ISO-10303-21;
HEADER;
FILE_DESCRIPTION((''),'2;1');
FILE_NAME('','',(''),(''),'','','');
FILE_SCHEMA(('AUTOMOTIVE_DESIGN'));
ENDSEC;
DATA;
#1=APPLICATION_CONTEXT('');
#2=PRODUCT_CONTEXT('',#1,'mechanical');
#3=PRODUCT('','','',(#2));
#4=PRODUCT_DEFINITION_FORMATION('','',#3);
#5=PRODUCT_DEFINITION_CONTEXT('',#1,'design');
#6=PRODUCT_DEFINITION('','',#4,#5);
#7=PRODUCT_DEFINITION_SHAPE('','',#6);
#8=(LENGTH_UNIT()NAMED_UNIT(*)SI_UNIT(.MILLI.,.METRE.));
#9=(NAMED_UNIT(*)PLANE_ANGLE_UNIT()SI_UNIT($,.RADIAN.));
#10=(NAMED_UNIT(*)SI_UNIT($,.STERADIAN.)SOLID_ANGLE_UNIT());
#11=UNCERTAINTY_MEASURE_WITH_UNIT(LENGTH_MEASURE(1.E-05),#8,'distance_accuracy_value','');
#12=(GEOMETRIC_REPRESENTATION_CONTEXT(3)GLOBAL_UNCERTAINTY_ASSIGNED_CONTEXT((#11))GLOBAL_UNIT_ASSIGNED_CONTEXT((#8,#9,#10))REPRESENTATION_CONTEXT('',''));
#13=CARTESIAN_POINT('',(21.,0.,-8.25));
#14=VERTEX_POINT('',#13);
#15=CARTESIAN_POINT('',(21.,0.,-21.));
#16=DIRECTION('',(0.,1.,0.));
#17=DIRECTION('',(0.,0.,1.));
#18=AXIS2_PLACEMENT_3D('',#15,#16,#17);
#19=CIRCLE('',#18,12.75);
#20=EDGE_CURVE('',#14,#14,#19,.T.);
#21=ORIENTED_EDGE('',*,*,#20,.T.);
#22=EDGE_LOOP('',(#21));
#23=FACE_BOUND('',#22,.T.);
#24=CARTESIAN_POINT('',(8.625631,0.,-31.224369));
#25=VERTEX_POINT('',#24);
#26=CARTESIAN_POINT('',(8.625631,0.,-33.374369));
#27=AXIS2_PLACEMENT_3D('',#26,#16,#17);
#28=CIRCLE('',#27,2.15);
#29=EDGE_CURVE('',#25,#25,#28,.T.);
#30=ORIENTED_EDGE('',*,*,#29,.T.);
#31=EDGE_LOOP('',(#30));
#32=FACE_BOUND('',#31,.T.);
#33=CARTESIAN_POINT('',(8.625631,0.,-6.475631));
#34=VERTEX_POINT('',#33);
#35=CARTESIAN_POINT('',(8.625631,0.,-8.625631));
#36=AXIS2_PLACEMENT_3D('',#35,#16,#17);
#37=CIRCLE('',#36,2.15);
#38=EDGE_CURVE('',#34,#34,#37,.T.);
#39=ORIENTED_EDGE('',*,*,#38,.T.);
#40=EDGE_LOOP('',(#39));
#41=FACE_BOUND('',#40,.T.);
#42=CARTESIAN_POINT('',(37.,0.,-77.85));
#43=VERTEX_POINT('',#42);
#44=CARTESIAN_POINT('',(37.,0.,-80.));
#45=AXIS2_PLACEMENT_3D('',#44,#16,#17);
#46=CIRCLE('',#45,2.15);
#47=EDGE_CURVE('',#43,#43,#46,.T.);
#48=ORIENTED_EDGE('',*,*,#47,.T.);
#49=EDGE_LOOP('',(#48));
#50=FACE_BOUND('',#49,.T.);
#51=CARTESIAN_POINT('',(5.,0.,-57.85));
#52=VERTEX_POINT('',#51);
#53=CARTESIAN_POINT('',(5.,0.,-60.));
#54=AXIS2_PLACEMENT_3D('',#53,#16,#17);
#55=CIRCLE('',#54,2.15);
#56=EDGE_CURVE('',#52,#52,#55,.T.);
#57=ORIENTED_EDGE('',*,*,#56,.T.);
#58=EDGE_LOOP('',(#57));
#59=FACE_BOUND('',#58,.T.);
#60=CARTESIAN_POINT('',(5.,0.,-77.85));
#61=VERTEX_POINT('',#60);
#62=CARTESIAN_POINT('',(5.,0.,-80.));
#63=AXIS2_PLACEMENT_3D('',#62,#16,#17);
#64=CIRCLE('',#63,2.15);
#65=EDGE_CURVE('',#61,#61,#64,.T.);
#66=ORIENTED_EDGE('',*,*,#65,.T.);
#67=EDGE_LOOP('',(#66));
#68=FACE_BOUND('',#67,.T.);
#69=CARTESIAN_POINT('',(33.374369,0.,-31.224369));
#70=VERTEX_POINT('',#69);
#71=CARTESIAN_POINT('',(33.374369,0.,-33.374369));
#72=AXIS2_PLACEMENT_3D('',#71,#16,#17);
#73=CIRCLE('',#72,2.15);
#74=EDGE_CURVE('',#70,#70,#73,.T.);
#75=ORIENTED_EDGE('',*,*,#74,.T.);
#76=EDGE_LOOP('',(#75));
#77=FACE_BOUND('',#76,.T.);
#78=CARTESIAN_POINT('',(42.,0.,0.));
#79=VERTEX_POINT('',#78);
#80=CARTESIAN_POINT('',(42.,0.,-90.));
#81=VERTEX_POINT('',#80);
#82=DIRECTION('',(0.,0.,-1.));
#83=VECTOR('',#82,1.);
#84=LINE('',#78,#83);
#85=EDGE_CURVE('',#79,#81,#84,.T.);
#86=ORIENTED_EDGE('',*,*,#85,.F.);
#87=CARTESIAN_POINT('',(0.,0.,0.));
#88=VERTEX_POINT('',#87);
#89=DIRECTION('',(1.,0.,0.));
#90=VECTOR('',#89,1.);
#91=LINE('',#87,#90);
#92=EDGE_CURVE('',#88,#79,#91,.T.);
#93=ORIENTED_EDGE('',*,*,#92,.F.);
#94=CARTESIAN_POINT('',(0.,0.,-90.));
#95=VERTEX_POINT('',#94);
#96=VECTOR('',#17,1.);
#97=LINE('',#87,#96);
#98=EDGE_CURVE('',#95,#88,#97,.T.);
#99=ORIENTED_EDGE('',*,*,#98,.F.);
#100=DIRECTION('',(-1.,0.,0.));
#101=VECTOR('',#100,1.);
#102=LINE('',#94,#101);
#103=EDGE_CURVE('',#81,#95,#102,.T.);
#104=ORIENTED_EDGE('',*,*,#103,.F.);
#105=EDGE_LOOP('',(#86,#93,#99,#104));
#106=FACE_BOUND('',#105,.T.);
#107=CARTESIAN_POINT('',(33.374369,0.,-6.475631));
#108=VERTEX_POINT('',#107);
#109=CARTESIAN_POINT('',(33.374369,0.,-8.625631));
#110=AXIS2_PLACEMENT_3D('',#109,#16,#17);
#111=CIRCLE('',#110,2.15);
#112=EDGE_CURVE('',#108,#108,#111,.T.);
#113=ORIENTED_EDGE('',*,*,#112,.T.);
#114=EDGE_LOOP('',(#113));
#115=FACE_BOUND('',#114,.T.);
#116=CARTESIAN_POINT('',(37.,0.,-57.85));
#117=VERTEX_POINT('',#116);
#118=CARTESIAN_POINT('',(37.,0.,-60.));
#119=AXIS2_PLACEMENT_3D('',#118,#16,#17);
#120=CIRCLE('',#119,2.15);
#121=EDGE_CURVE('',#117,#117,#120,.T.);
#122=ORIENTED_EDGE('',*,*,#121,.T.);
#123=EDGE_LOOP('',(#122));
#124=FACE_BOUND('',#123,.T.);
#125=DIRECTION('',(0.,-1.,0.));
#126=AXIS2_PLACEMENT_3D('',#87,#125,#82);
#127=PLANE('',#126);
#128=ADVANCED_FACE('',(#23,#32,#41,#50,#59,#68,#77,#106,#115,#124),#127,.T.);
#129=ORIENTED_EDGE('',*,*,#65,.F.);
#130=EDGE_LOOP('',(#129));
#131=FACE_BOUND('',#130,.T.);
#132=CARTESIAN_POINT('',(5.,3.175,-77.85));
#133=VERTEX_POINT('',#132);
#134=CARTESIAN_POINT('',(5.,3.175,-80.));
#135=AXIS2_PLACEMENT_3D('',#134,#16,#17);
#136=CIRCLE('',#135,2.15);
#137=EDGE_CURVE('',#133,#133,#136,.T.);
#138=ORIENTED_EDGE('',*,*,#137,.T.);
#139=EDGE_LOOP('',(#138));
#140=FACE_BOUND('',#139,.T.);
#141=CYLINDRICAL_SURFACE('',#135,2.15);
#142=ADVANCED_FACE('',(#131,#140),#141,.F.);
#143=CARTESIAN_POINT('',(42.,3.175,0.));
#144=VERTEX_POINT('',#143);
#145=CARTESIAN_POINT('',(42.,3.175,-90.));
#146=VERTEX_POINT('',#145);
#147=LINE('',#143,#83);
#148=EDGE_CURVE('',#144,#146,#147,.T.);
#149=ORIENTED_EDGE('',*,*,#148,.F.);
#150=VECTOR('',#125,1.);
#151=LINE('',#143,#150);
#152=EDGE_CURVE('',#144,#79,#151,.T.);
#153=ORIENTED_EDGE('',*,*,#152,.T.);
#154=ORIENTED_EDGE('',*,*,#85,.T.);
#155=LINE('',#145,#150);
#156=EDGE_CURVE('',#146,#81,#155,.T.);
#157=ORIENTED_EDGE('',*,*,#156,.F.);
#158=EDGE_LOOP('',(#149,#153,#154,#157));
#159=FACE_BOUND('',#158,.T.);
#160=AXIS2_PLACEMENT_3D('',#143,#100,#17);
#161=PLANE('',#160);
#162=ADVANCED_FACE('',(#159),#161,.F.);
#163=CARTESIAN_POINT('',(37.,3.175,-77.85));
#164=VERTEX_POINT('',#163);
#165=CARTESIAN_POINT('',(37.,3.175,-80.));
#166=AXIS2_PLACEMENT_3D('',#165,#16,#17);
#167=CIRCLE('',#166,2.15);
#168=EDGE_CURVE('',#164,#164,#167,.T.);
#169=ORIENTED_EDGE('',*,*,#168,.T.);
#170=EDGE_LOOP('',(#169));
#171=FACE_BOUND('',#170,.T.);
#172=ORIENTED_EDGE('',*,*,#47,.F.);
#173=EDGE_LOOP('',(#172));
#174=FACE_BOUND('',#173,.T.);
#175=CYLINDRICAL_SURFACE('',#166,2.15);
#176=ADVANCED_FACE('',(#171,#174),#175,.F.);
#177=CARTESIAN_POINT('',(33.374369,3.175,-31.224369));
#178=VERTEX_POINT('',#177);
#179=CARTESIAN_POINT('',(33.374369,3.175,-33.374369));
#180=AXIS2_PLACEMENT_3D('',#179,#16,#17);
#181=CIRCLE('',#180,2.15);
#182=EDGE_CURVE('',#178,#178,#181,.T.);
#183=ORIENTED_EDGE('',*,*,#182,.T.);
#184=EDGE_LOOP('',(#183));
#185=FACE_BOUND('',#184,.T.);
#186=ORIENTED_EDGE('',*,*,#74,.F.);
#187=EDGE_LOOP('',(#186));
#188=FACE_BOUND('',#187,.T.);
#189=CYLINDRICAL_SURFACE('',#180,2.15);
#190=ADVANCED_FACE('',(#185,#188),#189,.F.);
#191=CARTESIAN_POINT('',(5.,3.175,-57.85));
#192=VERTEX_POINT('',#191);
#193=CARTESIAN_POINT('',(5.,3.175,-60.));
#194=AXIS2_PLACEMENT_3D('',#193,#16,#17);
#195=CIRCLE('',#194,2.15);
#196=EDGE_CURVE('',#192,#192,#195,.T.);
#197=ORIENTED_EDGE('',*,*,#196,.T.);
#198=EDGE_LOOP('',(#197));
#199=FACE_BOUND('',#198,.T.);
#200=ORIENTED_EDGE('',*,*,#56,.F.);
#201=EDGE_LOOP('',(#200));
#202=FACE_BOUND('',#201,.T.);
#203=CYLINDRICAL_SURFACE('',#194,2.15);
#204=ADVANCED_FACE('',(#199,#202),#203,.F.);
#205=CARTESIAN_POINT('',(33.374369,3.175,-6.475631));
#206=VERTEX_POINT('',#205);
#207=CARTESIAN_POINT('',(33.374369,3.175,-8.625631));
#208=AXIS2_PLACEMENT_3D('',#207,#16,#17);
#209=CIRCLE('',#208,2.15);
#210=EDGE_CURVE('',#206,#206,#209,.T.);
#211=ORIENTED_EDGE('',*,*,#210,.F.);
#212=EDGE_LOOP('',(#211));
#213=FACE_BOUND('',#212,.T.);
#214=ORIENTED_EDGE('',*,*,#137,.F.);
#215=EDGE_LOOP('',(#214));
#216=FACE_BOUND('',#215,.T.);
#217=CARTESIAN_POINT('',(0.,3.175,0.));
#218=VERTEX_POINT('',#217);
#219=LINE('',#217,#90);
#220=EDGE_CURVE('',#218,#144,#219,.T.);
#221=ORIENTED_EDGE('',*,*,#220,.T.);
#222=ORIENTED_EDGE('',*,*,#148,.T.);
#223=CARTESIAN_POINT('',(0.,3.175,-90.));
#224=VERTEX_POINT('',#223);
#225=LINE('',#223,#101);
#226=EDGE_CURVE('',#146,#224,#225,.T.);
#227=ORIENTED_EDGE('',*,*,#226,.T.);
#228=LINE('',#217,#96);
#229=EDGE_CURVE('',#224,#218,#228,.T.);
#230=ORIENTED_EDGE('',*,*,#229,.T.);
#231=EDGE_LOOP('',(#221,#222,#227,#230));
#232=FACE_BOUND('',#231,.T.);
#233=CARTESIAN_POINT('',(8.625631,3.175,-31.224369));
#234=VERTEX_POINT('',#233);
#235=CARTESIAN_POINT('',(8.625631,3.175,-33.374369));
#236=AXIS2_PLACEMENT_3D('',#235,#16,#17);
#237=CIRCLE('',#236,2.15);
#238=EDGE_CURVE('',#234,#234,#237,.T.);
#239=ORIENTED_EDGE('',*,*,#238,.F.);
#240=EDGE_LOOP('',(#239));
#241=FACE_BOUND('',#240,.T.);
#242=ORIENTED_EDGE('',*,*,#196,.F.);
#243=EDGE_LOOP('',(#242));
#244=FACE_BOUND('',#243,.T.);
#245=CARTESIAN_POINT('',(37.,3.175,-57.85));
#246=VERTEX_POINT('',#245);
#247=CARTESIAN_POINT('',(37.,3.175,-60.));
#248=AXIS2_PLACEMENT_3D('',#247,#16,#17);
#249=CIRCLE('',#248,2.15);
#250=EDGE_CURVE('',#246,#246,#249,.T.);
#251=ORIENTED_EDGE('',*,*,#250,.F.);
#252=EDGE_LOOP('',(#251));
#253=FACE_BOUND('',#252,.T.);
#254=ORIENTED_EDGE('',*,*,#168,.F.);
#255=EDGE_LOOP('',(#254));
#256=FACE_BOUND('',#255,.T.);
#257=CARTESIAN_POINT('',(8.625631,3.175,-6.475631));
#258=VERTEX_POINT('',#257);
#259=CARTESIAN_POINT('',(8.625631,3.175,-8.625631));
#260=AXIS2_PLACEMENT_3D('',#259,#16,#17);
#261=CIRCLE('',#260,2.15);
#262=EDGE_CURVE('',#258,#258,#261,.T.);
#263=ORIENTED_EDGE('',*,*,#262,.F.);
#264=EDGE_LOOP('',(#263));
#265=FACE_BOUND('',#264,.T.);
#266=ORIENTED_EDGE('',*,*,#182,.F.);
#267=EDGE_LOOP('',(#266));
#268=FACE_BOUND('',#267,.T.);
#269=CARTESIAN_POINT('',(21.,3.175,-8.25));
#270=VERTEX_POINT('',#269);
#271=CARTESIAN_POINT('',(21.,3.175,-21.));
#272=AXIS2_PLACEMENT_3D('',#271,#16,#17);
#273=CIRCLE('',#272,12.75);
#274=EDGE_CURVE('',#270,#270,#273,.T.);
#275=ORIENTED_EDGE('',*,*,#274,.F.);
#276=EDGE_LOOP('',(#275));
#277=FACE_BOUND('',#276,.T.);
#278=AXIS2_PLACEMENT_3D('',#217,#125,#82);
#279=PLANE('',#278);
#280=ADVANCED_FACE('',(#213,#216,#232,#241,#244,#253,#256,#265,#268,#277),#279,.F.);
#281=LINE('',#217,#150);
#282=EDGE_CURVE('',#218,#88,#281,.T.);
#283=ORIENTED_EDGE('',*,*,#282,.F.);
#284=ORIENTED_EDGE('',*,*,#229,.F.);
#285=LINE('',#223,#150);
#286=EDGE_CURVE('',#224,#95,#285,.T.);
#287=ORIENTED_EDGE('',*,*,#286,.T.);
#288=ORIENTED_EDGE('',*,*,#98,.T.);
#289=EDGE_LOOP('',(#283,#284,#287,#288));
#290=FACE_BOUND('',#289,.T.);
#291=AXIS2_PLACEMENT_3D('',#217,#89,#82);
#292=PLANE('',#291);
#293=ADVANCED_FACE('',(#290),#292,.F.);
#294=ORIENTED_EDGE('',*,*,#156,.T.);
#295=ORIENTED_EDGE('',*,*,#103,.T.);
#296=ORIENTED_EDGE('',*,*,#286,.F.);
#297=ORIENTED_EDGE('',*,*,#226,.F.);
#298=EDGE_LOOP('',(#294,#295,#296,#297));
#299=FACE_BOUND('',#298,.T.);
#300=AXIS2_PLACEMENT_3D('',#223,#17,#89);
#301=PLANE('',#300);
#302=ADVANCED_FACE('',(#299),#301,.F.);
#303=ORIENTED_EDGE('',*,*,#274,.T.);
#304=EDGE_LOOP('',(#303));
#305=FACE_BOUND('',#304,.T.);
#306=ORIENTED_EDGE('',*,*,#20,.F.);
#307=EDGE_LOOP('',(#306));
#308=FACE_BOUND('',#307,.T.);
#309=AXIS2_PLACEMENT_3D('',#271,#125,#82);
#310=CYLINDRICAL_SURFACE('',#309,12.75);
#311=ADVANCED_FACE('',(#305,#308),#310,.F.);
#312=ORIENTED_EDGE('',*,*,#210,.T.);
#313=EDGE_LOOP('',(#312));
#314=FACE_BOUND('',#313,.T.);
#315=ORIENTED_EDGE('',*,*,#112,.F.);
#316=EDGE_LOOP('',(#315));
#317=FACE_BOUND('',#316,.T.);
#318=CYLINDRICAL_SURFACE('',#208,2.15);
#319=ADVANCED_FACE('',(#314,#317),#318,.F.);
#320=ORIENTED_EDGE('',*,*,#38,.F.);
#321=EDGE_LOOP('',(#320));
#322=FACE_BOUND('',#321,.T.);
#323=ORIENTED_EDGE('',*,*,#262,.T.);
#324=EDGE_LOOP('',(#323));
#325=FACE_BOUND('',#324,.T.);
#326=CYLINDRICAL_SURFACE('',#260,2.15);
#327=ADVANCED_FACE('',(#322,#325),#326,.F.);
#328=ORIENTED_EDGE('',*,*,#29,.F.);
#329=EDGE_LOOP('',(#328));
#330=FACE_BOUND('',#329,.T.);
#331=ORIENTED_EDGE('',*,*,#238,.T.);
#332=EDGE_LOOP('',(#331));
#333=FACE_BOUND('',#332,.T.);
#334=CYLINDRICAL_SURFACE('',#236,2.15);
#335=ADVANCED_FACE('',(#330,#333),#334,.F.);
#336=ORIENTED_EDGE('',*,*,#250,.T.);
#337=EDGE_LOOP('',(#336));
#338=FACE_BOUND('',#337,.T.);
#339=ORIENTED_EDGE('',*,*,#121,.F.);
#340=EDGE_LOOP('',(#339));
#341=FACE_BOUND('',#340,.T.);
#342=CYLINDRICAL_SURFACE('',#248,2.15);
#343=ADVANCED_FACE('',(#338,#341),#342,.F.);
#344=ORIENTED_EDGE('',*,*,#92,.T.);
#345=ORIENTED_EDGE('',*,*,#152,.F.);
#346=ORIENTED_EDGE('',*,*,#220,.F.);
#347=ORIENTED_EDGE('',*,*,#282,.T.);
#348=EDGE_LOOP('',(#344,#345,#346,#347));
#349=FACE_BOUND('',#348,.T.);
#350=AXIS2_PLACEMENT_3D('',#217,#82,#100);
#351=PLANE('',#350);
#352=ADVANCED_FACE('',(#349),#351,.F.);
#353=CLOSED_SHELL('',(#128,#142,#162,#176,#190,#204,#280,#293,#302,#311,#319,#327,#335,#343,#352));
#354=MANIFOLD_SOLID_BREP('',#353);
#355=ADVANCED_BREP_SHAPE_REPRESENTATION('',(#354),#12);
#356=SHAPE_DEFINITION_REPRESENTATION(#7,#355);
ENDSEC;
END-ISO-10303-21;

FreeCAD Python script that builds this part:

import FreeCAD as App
import Part
import Sketcher


def add_polygon(sketch, points):
    """Adds a closed chain of lines whose ends are joined by coincident constraints."""
    first, n = sketch.GeometryCount, len(points)
    for a, b in zip(points, points[1:] + points[:1]):
        sketch.addGeometry(Part.LineSegment(App.Vector(*a, 0), App.Vector(*b, 0)), False)
    for i in range(n):
        sketch.addConstraint(Sketcher.Constraint("Coincident", first + i, 2, first + (i + 1) % n, 1))

doc = App.newDocument("Part")
body = doc.addObject("PartDesign::Body", "Body")

sketch1 = body.newObject("Sketcher::SketchObject", "Sketch")
sketch1.AttachmentSupport = (doc.getObject("XZ_Plane"), [""])
sketch1.MapMode = "FlatFace"
add_polygon(sketch1, [(0, -90), (0, 0), (42, 0), (42, -90)])
sketch1.addGeometry(Part.Circle(App.Vector(21, -21, 0), App.Vector(0, 0, 1), 13), False)
sketch1.addConstraint(Sketcher.Constraint("Vertical", 0))
sketch1.addConstraint(Sketcher.Constraint("Horizontal", 1))
sketch1.addConstraint(Sketcher.Constraint("Vertical", 2))
sketch1.addConstraint(Sketcher.Constraint("Horizontal", 3))
sketch1.addConstraint(Sketcher.Constraint("Coincident", 0, 2, -1, 1))
sketch1.addConstraint(Sketcher.Constraint("Diameter", 4, 25.5))
sketch1.addConstraint(Sketcher.Constraint("DistanceX", 1, 1, 1, 2, 42.0))
sketch1.addConstraint(Sketcher.Constraint("DistanceY", 0, 1, 0, 2, 90.0))
sketch1.addConstraint(Sketcher.Constraint("DistanceX", -1, 1, 4, 3, 21.0))
sketch1.addConstraint(Sketcher.Constraint("DistanceY", 4, 3, -1, 1, 21.0))
pad1 = body.newObject("PartDesign::Pad", "Pad")
pad1.Profile = sketch1
pad1.Length = 3.175
pad1.Reversed = True

sketch2 = body.newObject("Sketcher::SketchObject", "Sketch001")
sketch2.AttachmentSupport = (doc.getObject("XZ_Plane"), [""])
sketch2.MapMode = "FlatFace"
sketch2.AttachmentOffset = App.Placement(App.Vector(0, 0, -3.175), App.Rotation())
sketch2.addGeometry(Part.Circle(App.Vector(8.6, -33.4, 0), App.Vector(0, 0, 1), 2.1), False)
sketch2.addGeometry(Part.Circle(App.Vector(21, -21, 0), App.Vector(0, 0, 1), 2.1), False)
sketch2.addGeometry(Part.Circle(App.Vector(5, -80, 0), App.Vector(0, 0, 1), 2.1), False)
sketch2.addGeometry(Part.Circle(App.Vector(33.4, -33.4, 0), App.Vector(0, 0, 1), 2.1), False)
sketch2.addGeometry(Part.Circle(App.Vector(33.4, -8.6, 0), App.Vector(0, 0, 1), 2.1), False)
sketch2.addGeometry(Part.Circle(App.Vector(8.6, -8.6, 0), App.Vector(0, 0, 1), 2.1), False)
sketch2.addGeometry(Part.Circle(App.Vector(37, -80, 0), App.Vector(0, 0, 1), 2.1), False)
sketch2.addGeometry(Part.Circle(App.Vector(37, -60, 0), App.Vector(0, 0, 1), 2.1), False)
sketch2.addGeometry(Part.Circle(App.Vector(5, -60, 0), App.Vector(0, 0, 1), 2.1), False)
sketch2.addConstraint(Sketcher.Constraint("Equal", 0, 1))
sketch2.addConstraint(Sketcher.Constraint("Equal", 1, 2))
sketch2.addConstraint(Sketcher.Constraint("Equal", 2, 3))
sketch2.addConstraint(Sketcher.Constraint("Equal", 3, 4))
sketch2.addConstraint(Sketcher.Constraint("Equal", 4, 5))
sketch2.addConstraint(Sketcher.Constraint("Equal", 5, 6))
sketch2.addConstraint(Sketcher.Constraint("Equal", 6, 7))
sketch2.addConstraint(Sketcher.Constraint("Equal", 7, 8))
sketch2.addConstraint(Sketcher.Constraint("Horizontal", 0, 3, 3, 3))
sketch2.addConstraint(Sketcher.Constraint("Horizontal", 4, 3, 5, 3))
sketch2.addConstraint(Sketcher.Constraint("Horizontal", 2, 3, 6, 3))
sketch2.addConstraint(Sketcher.Constraint("Horizontal", 7, 3, 8, 3))
sketch2.addConstraint(Sketcher.Constraint("Vertical", 3, 3, 4, 3))
sketch2.addConstraint(Sketcher.Constraint("Vertical", 0, 3, 5, 3))
sketch2.addConstraint(Sketcher.Constraint("Vertical", 6, 3, 7, 3))
sketch2.addConstraint(Sketcher.Constraint("Vertical", 2, 3, 8, 3))
sketch2.addConstraint(Sketcher.Constraint("Diameter", 0, 4.3))
sketch2.addConstraint(Sketcher.Constraint("DistanceX", -1, 1, 1, 3, 21.0))
sketch2.addConstraint(Sketcher.Constraint("DistanceY", 1, 3, -1, 1, 21.0))
sketch2.addConstraint(Sketcher.Constraint("DistanceX", -1, 1, 2, 3, 5.0))
sketch2.addConstraint(Sketcher.Constraint("DistanceY", 2, 3, -1, 1, 80.0))
sketch2.addConstraint(Sketcher.Constraint("DistanceX", -1, 1, 6, 3, 37.0))
sketch2.addConstraint(Sketcher.Constraint("DistanceY", 7, 3, -1, 1, 60.0))
sketch2.addConstraint(Sketcher.Constraint("DistanceX", -1, 1, 0, 3, 8.625631))
sketch2.addConstraint(Sketcher.Constraint("DistanceY", 0, 3, -1, 1, 33.374369))
sketch2.addConstraint(Sketcher.Constraint("DistanceX", -1, 1, 3, 3, 33.374369))
sketch2.addConstraint(Sketcher.Constraint("DistanceY", 4, 3, -1, 1, 8.625631))
doc.recompute()
hole = body.newObject("PartDesign::Hole", "Hole")
hole.Profile = sketch2
hole.ThreadType = "None"
hole.Diameter = 4.3
hole.DepthType = "ThroughAll"
hole.Reversed = True

doc.recompute()
